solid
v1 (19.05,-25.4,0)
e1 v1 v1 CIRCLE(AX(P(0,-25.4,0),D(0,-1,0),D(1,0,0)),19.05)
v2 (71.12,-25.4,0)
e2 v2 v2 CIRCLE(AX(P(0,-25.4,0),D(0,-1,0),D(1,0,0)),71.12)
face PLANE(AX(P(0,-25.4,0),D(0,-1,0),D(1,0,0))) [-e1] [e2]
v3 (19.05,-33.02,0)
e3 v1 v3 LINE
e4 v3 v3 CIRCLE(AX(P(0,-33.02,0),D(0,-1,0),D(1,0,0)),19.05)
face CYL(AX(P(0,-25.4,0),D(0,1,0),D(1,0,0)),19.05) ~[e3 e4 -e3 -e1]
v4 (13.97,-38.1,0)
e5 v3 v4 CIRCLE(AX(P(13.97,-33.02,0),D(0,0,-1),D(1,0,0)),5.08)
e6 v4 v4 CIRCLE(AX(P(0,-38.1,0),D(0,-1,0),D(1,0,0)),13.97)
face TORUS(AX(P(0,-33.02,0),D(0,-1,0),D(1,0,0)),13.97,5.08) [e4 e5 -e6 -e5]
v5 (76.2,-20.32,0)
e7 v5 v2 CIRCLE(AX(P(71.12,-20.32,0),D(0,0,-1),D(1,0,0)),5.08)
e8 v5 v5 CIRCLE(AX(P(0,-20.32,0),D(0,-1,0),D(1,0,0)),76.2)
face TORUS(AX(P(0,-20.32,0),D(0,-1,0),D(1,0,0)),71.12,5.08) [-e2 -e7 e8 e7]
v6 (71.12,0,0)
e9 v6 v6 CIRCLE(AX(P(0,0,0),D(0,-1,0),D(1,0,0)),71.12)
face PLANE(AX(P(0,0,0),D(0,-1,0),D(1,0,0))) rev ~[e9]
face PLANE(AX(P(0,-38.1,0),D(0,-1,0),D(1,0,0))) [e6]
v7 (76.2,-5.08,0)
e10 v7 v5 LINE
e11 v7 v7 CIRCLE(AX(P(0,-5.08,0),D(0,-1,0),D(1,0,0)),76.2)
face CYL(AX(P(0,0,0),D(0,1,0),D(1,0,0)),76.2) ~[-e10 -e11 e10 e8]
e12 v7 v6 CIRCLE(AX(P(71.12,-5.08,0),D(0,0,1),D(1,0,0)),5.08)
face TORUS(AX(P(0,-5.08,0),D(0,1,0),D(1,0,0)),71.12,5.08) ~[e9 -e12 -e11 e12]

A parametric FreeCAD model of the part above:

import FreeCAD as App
import Part
import Sketcher

V = App.Vector
Q = App.Units.Quantity


def edges_at(feature, points):
    """Names of the edges that pass closest to the given points."""
    edges = feature.Shape.Edges
    near = lambda p: min(range(len(edges)), key=lambda i: edges[i].distToShape(Part.Vertex(*p))[0])
    return sorted({f"Edge{near(p) + 1}" for p in points})

doc = App.newDocument("Part")
body = doc.addObject("PartDesign::Body", "Body")

sketch1 = body.newObject("Sketcher::SketchObject", "Sketch")
sketch1.AttachmentSupport = (doc.getObject("XZ_Plane"), [""])
sketch1.MapMode = "FlatFace"
sketch1.addGeometry(Part.Circle(V(0, 0, 0), V(0, 0, 1), 76), False)
sketch1.addConstraint([
    Sketcher.Constraint("Coincident", 0, 3, -1, 1),
    Sketcher.Constraint("Diameter", 0, Q("6 in")),
])
pad1 = body.newObject("PartDesign::Pad", "Pad")
pad1.Profile = sketch1
pad1.Length = Q("1 in")
doc.recompute()

fillet = body.newObject("PartDesign::Fillet", "Fillet")
fillet.Base = (pad1, edges_at(pad1, [(-76.2, -25.4, 0)]))
fillet.Radius = Q("0.2 in")
doc.recompute()

fillet2 = body.newObject("PartDesign::Fillet", "Fillet001")
fillet2.Base = (fillet, edges_at(fillet, [(76.2, -10.16, 0), (-76.2, -20.32, 0), (-76.2, 0, 0)]))
fillet2.Radius = Q("0.2 in")

sketch2 = body.newObject("Sketcher::SketchObject", "Sketch001")
sketch2.AttachmentSupport = (doc.getObject("XZ_Plane"), [""])
sketch2.MapMode = "FlatFace"
sketch2.AttachmentOffset = App.Placement(V(0, 0, 1 * 25.4), App.Rotation())
sketch2.addGeometry(Part.Circle(V(0, 0, 0), V(0, 0, 1), 19), False)
sketch2.addConstraint([
    Sketcher.Constraint("Coincident", 0, 3, -1, 1),
    Sketcher.Constraint("Diameter", 0, Q("1.5 in")),
])
pad2 = body.newObject("PartDesign::Pad", "Pad001")
pad2.Profile = sketch2
pad2.Length = Q("0.5 in")
doc.recompute()

fillet3 = body.newObject("PartDesign::Fillet", "Fillet002")
fillet3.Base = (pad2, edges_at(pad2, [(-19.05, -38.1, 0)]))
fillet3.Radius = Q("0.2 in")

doc.recompute()
